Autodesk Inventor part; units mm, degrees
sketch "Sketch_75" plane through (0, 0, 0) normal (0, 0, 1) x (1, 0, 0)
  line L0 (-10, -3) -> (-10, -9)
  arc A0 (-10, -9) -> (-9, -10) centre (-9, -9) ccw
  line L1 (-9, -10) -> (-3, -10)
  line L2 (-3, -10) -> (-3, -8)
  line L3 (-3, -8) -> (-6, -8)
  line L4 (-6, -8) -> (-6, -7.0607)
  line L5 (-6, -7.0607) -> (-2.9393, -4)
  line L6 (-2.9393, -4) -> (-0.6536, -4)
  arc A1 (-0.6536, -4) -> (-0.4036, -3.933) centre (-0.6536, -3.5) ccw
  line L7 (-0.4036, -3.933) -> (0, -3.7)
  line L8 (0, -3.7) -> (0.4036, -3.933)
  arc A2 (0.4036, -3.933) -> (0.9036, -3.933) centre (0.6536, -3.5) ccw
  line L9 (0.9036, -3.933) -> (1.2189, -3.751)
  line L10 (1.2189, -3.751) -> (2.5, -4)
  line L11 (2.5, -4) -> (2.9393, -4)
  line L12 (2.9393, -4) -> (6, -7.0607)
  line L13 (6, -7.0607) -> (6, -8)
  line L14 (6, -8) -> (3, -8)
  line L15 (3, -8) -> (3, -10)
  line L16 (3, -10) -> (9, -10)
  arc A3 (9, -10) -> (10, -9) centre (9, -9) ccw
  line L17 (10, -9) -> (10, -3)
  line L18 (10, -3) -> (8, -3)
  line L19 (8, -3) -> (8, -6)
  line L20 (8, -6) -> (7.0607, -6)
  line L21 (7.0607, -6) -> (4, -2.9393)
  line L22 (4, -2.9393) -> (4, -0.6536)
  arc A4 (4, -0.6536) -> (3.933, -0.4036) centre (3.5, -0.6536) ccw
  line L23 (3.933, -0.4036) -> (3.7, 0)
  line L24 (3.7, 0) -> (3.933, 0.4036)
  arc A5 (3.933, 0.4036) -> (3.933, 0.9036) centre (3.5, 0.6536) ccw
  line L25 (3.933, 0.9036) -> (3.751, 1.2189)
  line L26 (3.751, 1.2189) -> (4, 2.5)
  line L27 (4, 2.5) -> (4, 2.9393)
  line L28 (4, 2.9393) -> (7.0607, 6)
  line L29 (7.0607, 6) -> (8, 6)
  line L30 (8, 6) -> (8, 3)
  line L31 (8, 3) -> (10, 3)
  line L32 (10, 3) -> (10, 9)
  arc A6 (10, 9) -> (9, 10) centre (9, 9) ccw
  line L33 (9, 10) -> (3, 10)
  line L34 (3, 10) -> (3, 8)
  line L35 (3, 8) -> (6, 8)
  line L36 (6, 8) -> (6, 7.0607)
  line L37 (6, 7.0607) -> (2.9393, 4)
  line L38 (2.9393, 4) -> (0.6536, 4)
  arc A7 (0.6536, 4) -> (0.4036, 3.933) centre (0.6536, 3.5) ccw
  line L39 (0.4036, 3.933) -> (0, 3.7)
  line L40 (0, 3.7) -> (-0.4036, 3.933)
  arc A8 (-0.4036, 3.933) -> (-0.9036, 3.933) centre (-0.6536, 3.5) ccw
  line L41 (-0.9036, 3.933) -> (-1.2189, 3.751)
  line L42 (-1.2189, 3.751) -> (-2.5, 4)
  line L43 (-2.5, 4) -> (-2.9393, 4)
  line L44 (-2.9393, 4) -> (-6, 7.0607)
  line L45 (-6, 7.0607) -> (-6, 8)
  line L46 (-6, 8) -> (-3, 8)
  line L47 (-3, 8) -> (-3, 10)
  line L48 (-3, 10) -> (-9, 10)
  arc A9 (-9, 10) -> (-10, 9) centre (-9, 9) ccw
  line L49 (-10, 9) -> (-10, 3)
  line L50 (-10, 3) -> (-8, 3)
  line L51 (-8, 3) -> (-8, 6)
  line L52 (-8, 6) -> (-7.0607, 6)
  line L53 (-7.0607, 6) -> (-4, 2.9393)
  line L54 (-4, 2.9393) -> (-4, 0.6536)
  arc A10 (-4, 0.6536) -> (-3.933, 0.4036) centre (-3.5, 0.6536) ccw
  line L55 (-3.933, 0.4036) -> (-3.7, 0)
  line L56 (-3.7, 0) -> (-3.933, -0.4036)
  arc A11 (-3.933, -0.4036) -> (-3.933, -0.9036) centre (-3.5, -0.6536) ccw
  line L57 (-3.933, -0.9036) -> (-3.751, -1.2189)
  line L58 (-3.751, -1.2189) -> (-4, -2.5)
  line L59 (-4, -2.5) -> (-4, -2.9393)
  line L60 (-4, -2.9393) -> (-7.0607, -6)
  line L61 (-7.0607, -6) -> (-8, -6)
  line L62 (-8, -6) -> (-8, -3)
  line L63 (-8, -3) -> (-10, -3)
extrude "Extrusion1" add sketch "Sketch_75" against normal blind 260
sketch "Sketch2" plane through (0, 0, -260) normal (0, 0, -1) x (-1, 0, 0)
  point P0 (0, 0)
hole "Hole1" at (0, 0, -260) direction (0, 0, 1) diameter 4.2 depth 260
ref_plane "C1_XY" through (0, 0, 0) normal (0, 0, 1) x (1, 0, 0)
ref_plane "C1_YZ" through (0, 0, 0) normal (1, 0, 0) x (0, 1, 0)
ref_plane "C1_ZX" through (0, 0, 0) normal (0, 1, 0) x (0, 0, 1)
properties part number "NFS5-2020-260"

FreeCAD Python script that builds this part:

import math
import FreeCAD as App
import Part
import Sketcher
Q = App.Units.Quantity

doc = App.newDocument("Part")
params = doc.addObject("Spreadsheet::Sheet", "Params")
for row, (alias, value) in enumerate([
    ("sketch1_radius", "1 mm"),
    ("sketch1_radius2", "0.5 mm"),
    ("sketch1_width", "2 mm"),
    ("sketch1_width2", "6 mm"),
    ("sketch1_width3", "3 mm"),
    ("pad1_length", "260 mm"),
    ("sketch2_diameter", "4.2 mm"),
    ("hole_diameter", "4.2 mm"),
    ("hole_depth", "260 mm"),
], start=1):
    params.set(f"A{row}", alias)
    params.set(f"B{row}", "=" + value)
    params.setAlias(f"B{row}", alias)

body = doc.addObject("PartDesign::Body", "Body")

# Sketch on XY plane
sketch1 = body.newObject("Sketcher::SketchObject", "Sketch")
sketch1.AttachmentSupport = (doc.getObject("XY_Plane"), [""])
sketch1.MapMode = "FlatFace"
sketch1.addGeometry([
    Part.LineSegment(App.Vector(-8, -3, 0), App.Vector(-10, -3, 0)),  # 0
    Part.LineSegment(App.Vector(-10, -3, 0), App.Vector(-10, -9, 0)),  # 1
    Part.ArcOfCircle(Part.Circle(App.Vector(-9, -9, 0), App.Vector(0, 0, 1), 1), math.radians(180), math.radians(270)),  # 2
    Part.LineSegment(App.Vector(-9, -10, 0), App.Vector(-3, -10, 0)),  # 3
    Part.LineSegment(App.Vector(-3, -10, 0), App.Vector(-3, -8, 0)),  # 4
    Part.LineSegment(App.Vector(-3, -8, 0), App.Vector(-6, -8, 0)),  # 5
    Part.LineSegment(App.Vector(-6, -8, 0), App.Vector(-6, -7.0607, 0)),  # 6
    Part.LineSegment(App.Vector(-6, -7.0607, 0), App.Vector(-2.9393, -4, 0)),  # 7
    Part.LineSegment(App.Vector(-2.9393, -4, 0), App.Vector(-0.6536, -4, 0)),  # 8
    Part.ArcOfCircle(Part.Circle(App.Vector(-0.6536, -3.5, 0), App.Vector(0, 0, 1), 0.5), math.radians(-90), math.radians(-59.999272)),  # 9
    Part.LineSegment(App.Vector(-0.4036, -3.933, 0), App.Vector(0, -3.7, 0)),  # 10
    Part.LineSegment(App.Vector(0, -3.7, 0), App.Vector(0.4036, -3.933, 0)),  # 11
    Part.ArcOfCircle(Part.Circle(App.Vector(0.6536, -3.5, 0), App.Vector(0, 0, 1), 0.499989), math.radians(-120.000728), math.radians(-59.999272)),  # 12
    Part.LineSegment(App.Vector(0.9036, -3.933, 0), App.Vector(1.2189, -3.751, 0)),  # 13
    Part.LineSegment(App.Vector(1.2189, -3.751, 0), App.Vector(2.5, -4, 0)),  # 14
    Part.LineSegment(App.Vector(2.5, -4, 0), App.Vector(2.9393, -4, 0)),  # 15
    Part.LineSegment(App.Vector(2.9393, -4, 0), App.Vector(6, -7.0607, 0)),  # 16
    Part.LineSegment(App.Vector(6, -7.0607, 0), App.Vector(6, -8, 0)),  # 17
    Part.LineSegment(App.Vector(6, -8, 0), App.Vector(3, -8, 0)),  # 18
    Part.LineSegment(App.Vector(3, -8, 0), App.Vector(3, -10, 0)),  # 19
    Part.LineSegment(App.Vector(3, -10, 0), App.Vector(9, -10, 0)),  # 20
    Part.ArcOfCircle(Part.Circle(App.Vector(9, -9, 0), App.Vector(0, 0, 1), 1), math.radians(-90), math.radians(0)),  # 21
    Part.LineSegment(App.Vector(10, -9, 0), App.Vector(10, -3, 0)),  # 22
    Part.LineSegment(App.Vector(10, -3, 0), App.Vector(8, -3, 0)),  # 23
    Part.LineSegment(App.Vector(8, -3, 0), App.Vector(8, -6, 0)),  # 24
    Part.LineSegment(App.Vector(8, -6, 0), App.Vector(7.0607, -6, 0)),  # 25
    Part.LineSegment(App.Vector(7.0607, -6, 0), App.Vector(4, -2.9393, 0)),  # 26
    Part.LineSegment(App.Vector(4, -2.9393, 0), App.Vector(4, -0.6536, 0)),  # 27
    Part.ArcOfCircle(Part.Circle(App.Vector(3.5, -0.6536, 0), App.Vector(0, 0, 1), 0.5), math.radians(0), math.radians(30.000728)),  # 28
    Part.LineSegment(App.Vector(3.933, -0.4036, 0), App.Vector(3.7, 0, 0)),  # 29
    Part.LineSegment(App.Vector(3.7, 0, 0), App.Vector(3.933, 0.4036, 0)),  # 30
    Part.ArcOfCircle(Part.Circle(App.Vector(3.5, 0.6536, 0), App.Vector(0, 0, 1), 0.499989), math.radians(-30.000728), math.radians(30.000728)),  # 31
    Part.LineSegment(App.Vector(3.933, 0.9036, 0), App.Vector(3.751, 1.2189, 0)),  # 32
    Part.LineSegment(App.Vector(3.751, 1.2189, 0), App.Vector(4, 2.5, 0)),  # 33
    Part.LineSegment(App.Vector(4, 2.5, 0), App.Vector(4, 2.9393, 0)),  # 34
    Part.LineSegment(App.Vector(4, 2.9393, 0), App.Vector(7.0607, 6, 0)),  # 35
    Part.LineSegment(App.Vector(7.0607, 6, 0), App.Vector(8, 6, 0)),  # 36
    Part.LineSegment(App.Vector(8, 6, 0), App.Vector(8, 3, 0)),  # 37
    Part.LineSegment(App.Vector(8, 3, 0), App.Vector(10, 3, 0)),  # 38
    Part.LineSegment(App.Vector(10, 3, 0), App.Vector(10, 9, 0)),  # 39
    Part.ArcOfCircle(Part.Circle(App.Vector(9, 9, 0), App.Vector(0, 0, 1), 1), math.radians(0), math.radians(90)),  # 40
    Part.LineSegment(App.Vector(9, 10, 0), App.Vector(3, 10, 0)),  # 41
    Part.LineSegment(App.Vector(3, 10, 0), App.Vector(3, 8, 0)),  # 42
    Part.LineSegment(App.Vector(3, 8, 0), App.Vector(6, 8, 0)),  # 43
    Part.LineSegment(App.Vector(6, 8, 0), App.Vector(6, 7.0607, 0)),  # 44
    Part.LineSegment(App.Vector(6, 7.0607, 0), App.Vector(2.9393, 4, 0)),  # 45
    Part.LineSegment(App.Vector(2.9393, 4, 0), App.Vector(0.6536, 4, 0)),  # 46
    Part.ArcOfCircle(Part.Circle(App.Vector(0.6536, 3.5, 0), App.Vector(0, 0, 1), 0.5), math.radians(90), math.radians(120.000728)),  # 47
    Part.LineSegment(App.Vector(0.4036, 3.933, 0), App.Vector(0, 3.7, 0)),  # 48
    Part.LineSegment(App.Vector(0, 3.7, 0), App.Vector(-0.4036, 3.933, 0)),  # 49
    Part.ArcOfCircle(Part.Circle(App.Vector(-0.6536, 3.5, 0), App.Vector(0, 0, 1), 0.499989), math.radians(59.999272), math.radians(120.000728)),  # 50
    Part.LineSegment(App.Vector(-0.9036, 3.933, 0), App.Vector(-1.2189, 3.751, 0)),  # 51
    Part.LineSegment(App.Vector(-1.2189, 3.751, 0), App.Vector(-2.5, 4, 0)),  # 52
    Part.LineSegment(App.Vector(-2.5, 4, 0), App.Vector(-2.9393, 4, 0)),  # 53
    Part.LineSegment(App.Vector(-2.9393, 4, 0), App.Vector(-6, 7.0607, 0)),  # 54
    Part.LineSegment(App.Vector(-6, 7.0607, 0), App.Vector(-6, 8, 0)),  # 55
    Part.LineSegment(App.Vector(-6, 8, 0), App.Vector(-3, 8, 0)),  # 56
    Part.LineSegment(App.Vector(-3, 8, 0), App.Vector(-3, 10, 0)),  # 57
    Part.LineSegment(App.Vector(-3, 10, 0), App.Vector(-9, 10, 0)),  # 58
    Part.ArcOfCircle(Part.Circle(App.Vector(-9, 9, 0), App.Vector(0, 0, 1), 1), math.radians(90), math.radians(180)),  # 59
    Part.LineSegment(App.Vector(-10, 9, 0), App.Vector(-10, 3, 0)),  # 60
    Part.LineSegment(App.Vector(-10, 3, 0), App.Vector(-8, 3, 0)),  # 61
    Part.LineSegment(App.Vector(-8, 3, 0), App.Vector(-8, 6, 0)),  # 62
    Part.LineSegment(App.Vector(-8, 6, 0), App.Vector(-7.0607, 6, 0)),  # 63
    Part.LineSegment(App.Vector(-7.0607, 6, 0), App.Vector(-4, 2.9393, 0)),  # 64
    Part.LineSegment(App.Vector(-4, 2.9393, 0), App.Vector(-4, 0.6536, 0)),  # 65
    Part.ArcOfCircle(Part.Circle(App.Vector(-3.5, 0.6536, 0), App.Vector(0, 0, 1), 0.5), math.radians(180), math.radians(210.000728)),  # 66
    Part.LineSegment(App.Vector(-3.933, 0.4036, 0), App.Vector(-3.7, 0, 0)),  # 67
    Part.LineSegment(App.Vector(-3.7, 0, 0), App.Vector(-3.933, -0.4036, 0)),  # 68
    Part.ArcOfCircle(Part.Circle(App.Vector(-3.5, -0.6536, 0), App.Vector(0, 0, 1), 0.499989), math.radians(149.999272), math.radians(210.000728)),  # 69
    Part.LineSegment(App.Vector(-3.933, -0.9036, 0), App.Vector(-3.751, -1.2189, 0)),  # 70
    Part.LineSegment(App.Vector(-3.751, -1.2189, 0), App.Vector(-4, -2.5, 0)),  # 71
    Part.LineSegment(App.Vector(-4, -2.5, 0), App.Vector(-4, -2.9393, 0)),  # 72
    Part.LineSegment(App.Vector(-4, -2.9393, 0), App.Vector(-7.0607, -6, 0)),  # 73
    Part.LineSegment(App.Vector(-7.0607, -6, 0), App.Vector(-8, -6, 0)),  # 74
    Part.LineSegment(App.Vector(-8, -6, 0), App.Vector(-8, -3, 0)),  # 75
], False)
sketch1.addConstraint([
    Sketcher.Constraint("Coincident", 0, 2, 1, 1),
    Sketcher.Constraint("Tangent", 1, 2, 2, 1),
    Sketcher.Constraint("Tangent", 2, 2, 3, 1),
    Sketcher.Constraint("Coincident", 3, 2, 4, 1),
    Sketcher.Constraint("Coincident", 4, 2, 5, 1),
    Sketcher.Constraint("Coincident", 5, 2, 6, 1),
    Sketcher.Constraint("Coincident", 6, 2, 7, 1),
    Sketcher.Constraint("Coincident", 7, 2, 8, 1),
    Sketcher.Constraint("Tangent", 8, 2, 9, 1),
    Sketcher.Constraint("Tangent", 9, 2, 10, 1),
    Sketcher.Constraint("Coincident", 10, 2, 11, 1),
    Sketcher.Constraint("Tangent", 11, 2, 12, 1),
    Sketcher.Constraint("Tangent", 12, 2, 13, 1),
    Sketcher.Constraint("Coincident", 13, 2, 14, 1),
    Sketcher.Constraint("Coincident", 14, 2, 15, 1),
    Sketcher.Constraint("Coincident", 15, 2, 16, 1),
    Sketcher.Constraint("Coincident", 16, 2, 17, 1),
    Sketcher.Constraint("Coincident", 17, 2, 18, 1),
    Sketcher.Constraint("Coincident", 18, 2, 19, 1),
    Sketcher.Constraint("Coincident", 19, 2, 20, 1),
    Sketcher.Constraint("Tangent", 20, 2, 21, 1),
    Sketcher.Constraint("Tangent", 21, 2, 22, 1),
    Sketcher.Constraint("Coincident", 22, 2, 23, 1),
    Sketcher.Constraint("Coincident", 23, 2, 24, 1),
    Sketcher.Constraint("Coincident", 24, 2, 25, 1),
    Sketcher.Constraint("Coincident", 25, 2, 26, 1),
    Sketcher.Constraint("Coincident", 26, 2, 27, 1),
    Sketcher.Constraint("Tangent", 27, 2, 28, 1),
    Sketcher.Constraint("Tangent", 28, 2, 29, 1),
    Sketcher.Constraint("Coincident", 29, 2, 30, 1),
    Sketcher.Constraint("Tangent", 30, 2, 31, 1),
    Sketcher.Constraint("Tangent", 31, 2, 32, 1),
    Sketcher.Constraint("Coincident", 32, 2, 33, 1),
    Sketcher.Constraint("Coincident", 33, 2, 34, 1),
    Sketcher.Constraint("Coincident", 34, 2, 35, 1),
    Sketcher.Constraint("Coincident", 35, 2, 36, 1),
    Sketcher.Constraint("Coincident", 36, 2, 37, 1),
    Sketcher.Constraint("Coincident", 37, 2, 38, 1),
    Sketcher.Constraint("Coincident", 38, 2, 39, 1),
    Sketcher.Constraint("Tangent", 39, 2, 40, 1),
    Sketcher.Constraint("Tangent", 40, 2, 41, 1),
    Sketcher.Constraint("Coincident", 41, 2, 42, 1),
    Sketcher.Constraint("Coincident", 42, 2, 43, 1),
    Sketcher.Constraint("Coincident", 43, 2, 44, 1),
    Sketcher.Constraint("Coincident", 44, 2, 45, 1),
    Sketcher.Constraint("Coincident", 45, 2, 46, 1),
    Sketcher.Constraint("Tangent", 46, 2, 47, 1),
    Sketcher.Constraint("Tangent", 47, 2, 48, 1),
    Sketcher.Constraint("Coincident", 48, 2, 49, 1),
    Sketcher.Constraint("Tangent", 49, 2, 50, 1),
    Sketcher.Constraint("Tangent", 50, 2, 51, 1),
    Sketcher.Constraint("Coincident", 51, 2, 52, 1),
    Sketcher.Constraint("Coincident", 52, 2, 53, 1),
    Sketcher.Constraint("Coincident", 53, 2, 54, 1),
    Sketcher.Constraint("Coincident", 54, 2, 55, 1),
    Sketcher.Constraint("Coincident", 55, 2, 56, 1),
    Sketcher.Constraint("Coincident", 56, 2, 57, 1),
    Sketcher.Constraint("Coincident", 57, 2, 58, 1),
    Sketcher.Constraint("Tangent", 58, 2, 59, 1),
    Sketcher.Constraint("Tangent", 59, 2, 60, 1),
    Sketcher.Constraint("Coincident", 60, 2, 61, 1),
    Sketcher.Constraint("Coincident", 61, 2, 62, 1),
    Sketcher.Constraint("Coincident", 62, 2, 63, 1),
    Sketcher.Constraint("Coincident", 63, 2, 64, 1),
    Sketcher.Constraint("Coincident", 64, 2, 65, 1),
    Sketcher.Constraint("Tangent", 65, 2, 66, 1),
    Sketcher.Constraint("Tangent", 66, 2, 67, 1),
    Sketcher.Constraint("Coincident", 67, 2, 68, 1),
    Sketcher.Constraint("Tangent", 68, 2, 69, 1),
    Sketcher.Constraint("Tangent", 69, 2, 70, 1),
    Sketcher.Constraint("Coincident", 70, 2, 71, 1),
    Sketcher.Constraint("Coincident", 71, 2, 72, 1),
    Sketcher.Constraint("Coincident", 72, 2, 73, 1),
    Sketcher.Constraint("Coincident", 73, 2, 74, 1),
    Sketcher.Constraint("Coincident", 74, 2, 75, 1),
    Sketcher.Constraint("Coincident", 75, 2, 0, 1),
    Sketcher.Constraint("Horizontal", 0),
    Sketcher.Constraint("Vertical", 1),
    Sketcher.Constraint("Horizontal", 3),
    Sketcher.Constraint("Vertical", 4),
    Sketcher.Constraint("Horizontal", 5),
    Sketcher.Constraint("Vertical", 6),
    Sketcher.Constraint("Horizontal", 8),
    Sketcher.Constraint("Horizontal", 15),
    Sketcher.Constraint("Vertical", 17),
    Sketcher.Constraint("Horizontal", 18),
    Sketcher.Constraint("Vertical", 19),
    Sketcher.Constraint("Horizontal", 20),
    Sketcher.Constraint("Vertical", 22),
    Sketcher.Constraint("Horizontal", 23),
    Sketcher.Constraint("Vertical", 24),
    Sketcher.Constraint("Horizontal", 25),
    Sketcher.Constraint("Vertical", 27),
    Sketcher.Constraint("Vertical", 34),
    Sketcher.Constraint("Horizontal", 36),
    Sketcher.Constraint("Vertical", 37),
    Sketcher.Constraint("Horizontal", 38),
    Sketcher.Constraint("Vertical", 39),
    Sketcher.Constraint("Horizontal", 41),
    Sketcher.Constraint("Vertical", 42),
    Sketcher.Constraint("Horizontal", 43),
    Sketcher.Constraint("Vertical", 44),
    Sketcher.Constraint("Horizontal", 46),
    Sketcher.Constraint("Horizontal", 53),
    Sketcher.Constraint("Vertical", 55),
    Sketcher.Constraint("Horizontal", 56),
    Sketcher.Constraint("Vertical", 57),
    Sketcher.Constraint("Horizontal", 58),
    Sketcher.Constraint("Vertical", 60),
    Sketcher.Constraint("Horizontal", 61),
    Sketcher.Constraint("Vertical", 62),
    Sketcher.Constraint("Horizontal", 63),
    Sketcher.Constraint("Vertical", 65),
    Sketcher.Constraint("Vertical", 72),
    Sketcher.Constraint("Horizontal", 74),
    Sketcher.Constraint("Vertical", 75),
    Sketcher.Constraint("Equal", 9, 12),
    Sketcher.Constraint("Equal", 2, 21),
    Sketcher.Constraint("Equal", 12, 28),
    Sketcher.Constraint("Equal", 28, 31),
    Sketcher.Constraint("Equal", 21, 40),
    Sketcher.Constraint("Equal", 31, 47),
    Sketcher.Constraint("Equal", 47, 50),
    Sketcher.Constraint("Equal", 40, 59),
    Sketcher.Constraint("Equal", 50, 66),
    Sketcher.Constraint("Equal", 66, 69),
    Sketcher.Constraint("Symmetric", 2, 3, 40, 3, -1, 1),
    Sketcher.Constraint("Symmetric", 9, 3, 47, 3, -1, 1),
    Sketcher.Constraint("Symmetric", 12, 3, 50, 3, -1, 1),
    Sketcher.Constraint("Symmetric", 21, 3, 59, 3, -1, 1),
    Sketcher.Constraint("Symmetric", 28, 3, 66, 3, -1, 1),
    Sketcher.Constraint("Symmetric", 31, 3, 69, 3, -1, 1),
    Sketcher.Constraint("Symmetric", 4, 2, 42, 2, -1, 1),
    Sketcher.Constraint("Symmetric", 6, 2, 44, 2, -1, 1),
    Sketcher.Constraint("Symmetric", 10, 2, 48, 2, -1, 1),
    Sketcher.Constraint("Symmetric", 13, 2, 51, 2, -1, 1),
    Sketcher.Constraint("Symmetric", 14, 2, 52, 2, -1, 1),
    Sketcher.Constraint("Symmetric", 16, 2, 54, 2, -1, 1),
    Sketcher.Constraint("Symmetric", 18, 2, 56, 2, -1, 1),
    Sketcher.Constraint("Symmetric", 23, 2, 61, 2, -1, 1),
    Sketcher.Constraint("Symmetric", 25, 2, 63, 2, -1, 1),
    Sketcher.Constraint("Symmetric", 29, 2, 67, 2, -1, 1),
    Sketcher.Constraint("Symmetric", 32, 2, 70, 2, -1, 1),
    Sketcher.Constraint("Symmetric", 33, 2, 71, 2, -1, 1),
    Sketcher.Constraint("Symmetric", 35, 2, 73, 2, -1, 1),
    Sketcher.Constraint("Symmetric", 37, 2, 75, 2, -1, 1),
    Sketcher.Constraint("Symmetric", 9, 3, 12, 3, -2),
    Sketcher.Constraint("Symmetric", 2, 3, 21, 3, -2),
    Sketcher.Constraint("Symmetric", 31, 3, 66, 3, -2),
    Sketcher.Constraint("Symmetric", 7, 2, 15, 2, -2),
    Sketcher.Constraint("Symmetric", 6, 2, 16, 2, -2),
    Sketcher.Constraint("Symmetric", 4, 2, 18, 2, -2),
    Sketcher.Constraint("Symmetric", 37, 2, 61, 2, -2),
    Sketcher.Constraint("Symmetric", 35, 2, 63, 2, -2),
    Sketcher.Constraint("Symmetric", 34, 2, 64, 2, -2),
    Sketcher.Constraint("PointOnObject", 10, 2, -2),
    Sketcher.Constraint("PointOnObject", 29, 2, -1),
    Sketcher.Constraint("Parallel", 10, 13),
    Sketcher.Constraint("Perpendicular", 7, 16),
    Sketcher.Constraint("Parallel", 16, 26),
    Sketcher.Constraint("Perpendicular", 13, 29),
    Sketcher.Constraint("Parallel", 29, 32),
    Sketcher.Constraint("Perpendicular", 14, 33),
    Sketcher.Constraint("Perpendicular", 26, 35),
    Sketcher.Constraint("Parallel", 35, 45),
    Sketcher.Constraint("Perpendicular", 45, 54),
    Sketcher.Constraint("Perpendicular", 64, 73),
    Sketcher.Constraint("Equal", 58, 1),
    Sketcher.Constraint("Equal", 61, 4),
    Sketcher.Constraint("Equal", 74, 6),
    Sketcher.Constraint("Equal", 56, 24),
    Sketcher.Constraint("Equal", 46, 27),
    Sketcher.Constraint("Equal", 53, 34),
    Sketcher.Constraint("Equal", 16, 26),
    Sketcher.Constraint("Equal", 11, 29),
    Sketcher.Constraint("Radius", 2, Q("1 mm")),
    Sketcher.Constraint("Radius", 9, Q("0.5 mm")),
    Sketcher.Constraint("DistanceX", 0, 2, 0, 1, Q("2 mm")),
    Sketcher.Constraint("DistanceX", 3, 1, 3, 2, Q("6 mm")),
    Sketcher.Constraint("DistanceX", 5, 2, 5, 1, Q("3 mm")),
    Sketcher.Constraint("Angle", 14, Q("-10.999 deg")),
    Sketcher.Constraint("DistanceX", 2, 3, -1, 1, Q("9 mm")),
    Sketcher.Constraint("DistanceY", 7, 2, -1, 1, Q("4 mm")),
    Sketcher.Constraint("DistanceY", 10, 2, -1, 1, Q("3.7 mm")),
    Sketcher.Constraint("DistanceX", -1, 1, 14, 2, Q("2.5 mm")),
    Sketcher.Constraint("Distance", 10, Q("0.466 mm")),
    Sketcher.Constraint("DistanceX", 8, 1, 8, 2, Q("2.2857 mm")),
])
sketch1.setExpression("Constraints[175]", "Params.sketch1_radius")
sketch1.setExpression("Constraints[176]", "Params.sketch1_radius2")
sketch1.setExpression("Constraints[177]", "Params.sketch1_width")
sketch1.setExpression("Constraints[178]", "Params.sketch1_width2")
sketch1.setExpression("Constraints[179]", "Params.sketch1_width3")
pad1 = body.newObject("PartDesign::Pad", "Pad")
pad1.Profile = sketch1
pad1.setExpression("Length", "Params.pad1_length")
pad1.Reversed = True

# Sketch on XY plane
sketch2 = body.newObject("Sketcher::SketchObject", "Sketch001")
sketch2.AttachmentSupport = (doc.getObject("XY_Plane"), [""])
sketch2.MapMode = "FlatFace"
sketch2.AttachmentOffset = App.Placement(App.Vector(0, 0, -260), App.Rotation())
sketch2.addGeometry(Part.Circle(App.Vector(0, 0, 0), App.Vector(0, 0, 1), 2.1), False)
sketch2.addConstraint([
    Sketcher.Constraint("Coincident", 0, 3, -1, 1),
    Sketcher.Constraint("Diameter", 0, Q("4.2 mm")),
])
sketch2.setExpression("Constraints[1]", "Params.sketch2_diameter")
doc.recompute()
hole = body.newObject("PartDesign::Hole", "Hole")
hole.Profile = sketch2
hole.ThreadType = "None"
hole.setExpression("Diameter", "Params.hole_diameter")
hole.DepthType = "Dimension"
hole.setExpression("Depth", "Params.hole_depth")
hole.DrillPoint = "Flat"
hole.Reversed = True

doc.recompute()
